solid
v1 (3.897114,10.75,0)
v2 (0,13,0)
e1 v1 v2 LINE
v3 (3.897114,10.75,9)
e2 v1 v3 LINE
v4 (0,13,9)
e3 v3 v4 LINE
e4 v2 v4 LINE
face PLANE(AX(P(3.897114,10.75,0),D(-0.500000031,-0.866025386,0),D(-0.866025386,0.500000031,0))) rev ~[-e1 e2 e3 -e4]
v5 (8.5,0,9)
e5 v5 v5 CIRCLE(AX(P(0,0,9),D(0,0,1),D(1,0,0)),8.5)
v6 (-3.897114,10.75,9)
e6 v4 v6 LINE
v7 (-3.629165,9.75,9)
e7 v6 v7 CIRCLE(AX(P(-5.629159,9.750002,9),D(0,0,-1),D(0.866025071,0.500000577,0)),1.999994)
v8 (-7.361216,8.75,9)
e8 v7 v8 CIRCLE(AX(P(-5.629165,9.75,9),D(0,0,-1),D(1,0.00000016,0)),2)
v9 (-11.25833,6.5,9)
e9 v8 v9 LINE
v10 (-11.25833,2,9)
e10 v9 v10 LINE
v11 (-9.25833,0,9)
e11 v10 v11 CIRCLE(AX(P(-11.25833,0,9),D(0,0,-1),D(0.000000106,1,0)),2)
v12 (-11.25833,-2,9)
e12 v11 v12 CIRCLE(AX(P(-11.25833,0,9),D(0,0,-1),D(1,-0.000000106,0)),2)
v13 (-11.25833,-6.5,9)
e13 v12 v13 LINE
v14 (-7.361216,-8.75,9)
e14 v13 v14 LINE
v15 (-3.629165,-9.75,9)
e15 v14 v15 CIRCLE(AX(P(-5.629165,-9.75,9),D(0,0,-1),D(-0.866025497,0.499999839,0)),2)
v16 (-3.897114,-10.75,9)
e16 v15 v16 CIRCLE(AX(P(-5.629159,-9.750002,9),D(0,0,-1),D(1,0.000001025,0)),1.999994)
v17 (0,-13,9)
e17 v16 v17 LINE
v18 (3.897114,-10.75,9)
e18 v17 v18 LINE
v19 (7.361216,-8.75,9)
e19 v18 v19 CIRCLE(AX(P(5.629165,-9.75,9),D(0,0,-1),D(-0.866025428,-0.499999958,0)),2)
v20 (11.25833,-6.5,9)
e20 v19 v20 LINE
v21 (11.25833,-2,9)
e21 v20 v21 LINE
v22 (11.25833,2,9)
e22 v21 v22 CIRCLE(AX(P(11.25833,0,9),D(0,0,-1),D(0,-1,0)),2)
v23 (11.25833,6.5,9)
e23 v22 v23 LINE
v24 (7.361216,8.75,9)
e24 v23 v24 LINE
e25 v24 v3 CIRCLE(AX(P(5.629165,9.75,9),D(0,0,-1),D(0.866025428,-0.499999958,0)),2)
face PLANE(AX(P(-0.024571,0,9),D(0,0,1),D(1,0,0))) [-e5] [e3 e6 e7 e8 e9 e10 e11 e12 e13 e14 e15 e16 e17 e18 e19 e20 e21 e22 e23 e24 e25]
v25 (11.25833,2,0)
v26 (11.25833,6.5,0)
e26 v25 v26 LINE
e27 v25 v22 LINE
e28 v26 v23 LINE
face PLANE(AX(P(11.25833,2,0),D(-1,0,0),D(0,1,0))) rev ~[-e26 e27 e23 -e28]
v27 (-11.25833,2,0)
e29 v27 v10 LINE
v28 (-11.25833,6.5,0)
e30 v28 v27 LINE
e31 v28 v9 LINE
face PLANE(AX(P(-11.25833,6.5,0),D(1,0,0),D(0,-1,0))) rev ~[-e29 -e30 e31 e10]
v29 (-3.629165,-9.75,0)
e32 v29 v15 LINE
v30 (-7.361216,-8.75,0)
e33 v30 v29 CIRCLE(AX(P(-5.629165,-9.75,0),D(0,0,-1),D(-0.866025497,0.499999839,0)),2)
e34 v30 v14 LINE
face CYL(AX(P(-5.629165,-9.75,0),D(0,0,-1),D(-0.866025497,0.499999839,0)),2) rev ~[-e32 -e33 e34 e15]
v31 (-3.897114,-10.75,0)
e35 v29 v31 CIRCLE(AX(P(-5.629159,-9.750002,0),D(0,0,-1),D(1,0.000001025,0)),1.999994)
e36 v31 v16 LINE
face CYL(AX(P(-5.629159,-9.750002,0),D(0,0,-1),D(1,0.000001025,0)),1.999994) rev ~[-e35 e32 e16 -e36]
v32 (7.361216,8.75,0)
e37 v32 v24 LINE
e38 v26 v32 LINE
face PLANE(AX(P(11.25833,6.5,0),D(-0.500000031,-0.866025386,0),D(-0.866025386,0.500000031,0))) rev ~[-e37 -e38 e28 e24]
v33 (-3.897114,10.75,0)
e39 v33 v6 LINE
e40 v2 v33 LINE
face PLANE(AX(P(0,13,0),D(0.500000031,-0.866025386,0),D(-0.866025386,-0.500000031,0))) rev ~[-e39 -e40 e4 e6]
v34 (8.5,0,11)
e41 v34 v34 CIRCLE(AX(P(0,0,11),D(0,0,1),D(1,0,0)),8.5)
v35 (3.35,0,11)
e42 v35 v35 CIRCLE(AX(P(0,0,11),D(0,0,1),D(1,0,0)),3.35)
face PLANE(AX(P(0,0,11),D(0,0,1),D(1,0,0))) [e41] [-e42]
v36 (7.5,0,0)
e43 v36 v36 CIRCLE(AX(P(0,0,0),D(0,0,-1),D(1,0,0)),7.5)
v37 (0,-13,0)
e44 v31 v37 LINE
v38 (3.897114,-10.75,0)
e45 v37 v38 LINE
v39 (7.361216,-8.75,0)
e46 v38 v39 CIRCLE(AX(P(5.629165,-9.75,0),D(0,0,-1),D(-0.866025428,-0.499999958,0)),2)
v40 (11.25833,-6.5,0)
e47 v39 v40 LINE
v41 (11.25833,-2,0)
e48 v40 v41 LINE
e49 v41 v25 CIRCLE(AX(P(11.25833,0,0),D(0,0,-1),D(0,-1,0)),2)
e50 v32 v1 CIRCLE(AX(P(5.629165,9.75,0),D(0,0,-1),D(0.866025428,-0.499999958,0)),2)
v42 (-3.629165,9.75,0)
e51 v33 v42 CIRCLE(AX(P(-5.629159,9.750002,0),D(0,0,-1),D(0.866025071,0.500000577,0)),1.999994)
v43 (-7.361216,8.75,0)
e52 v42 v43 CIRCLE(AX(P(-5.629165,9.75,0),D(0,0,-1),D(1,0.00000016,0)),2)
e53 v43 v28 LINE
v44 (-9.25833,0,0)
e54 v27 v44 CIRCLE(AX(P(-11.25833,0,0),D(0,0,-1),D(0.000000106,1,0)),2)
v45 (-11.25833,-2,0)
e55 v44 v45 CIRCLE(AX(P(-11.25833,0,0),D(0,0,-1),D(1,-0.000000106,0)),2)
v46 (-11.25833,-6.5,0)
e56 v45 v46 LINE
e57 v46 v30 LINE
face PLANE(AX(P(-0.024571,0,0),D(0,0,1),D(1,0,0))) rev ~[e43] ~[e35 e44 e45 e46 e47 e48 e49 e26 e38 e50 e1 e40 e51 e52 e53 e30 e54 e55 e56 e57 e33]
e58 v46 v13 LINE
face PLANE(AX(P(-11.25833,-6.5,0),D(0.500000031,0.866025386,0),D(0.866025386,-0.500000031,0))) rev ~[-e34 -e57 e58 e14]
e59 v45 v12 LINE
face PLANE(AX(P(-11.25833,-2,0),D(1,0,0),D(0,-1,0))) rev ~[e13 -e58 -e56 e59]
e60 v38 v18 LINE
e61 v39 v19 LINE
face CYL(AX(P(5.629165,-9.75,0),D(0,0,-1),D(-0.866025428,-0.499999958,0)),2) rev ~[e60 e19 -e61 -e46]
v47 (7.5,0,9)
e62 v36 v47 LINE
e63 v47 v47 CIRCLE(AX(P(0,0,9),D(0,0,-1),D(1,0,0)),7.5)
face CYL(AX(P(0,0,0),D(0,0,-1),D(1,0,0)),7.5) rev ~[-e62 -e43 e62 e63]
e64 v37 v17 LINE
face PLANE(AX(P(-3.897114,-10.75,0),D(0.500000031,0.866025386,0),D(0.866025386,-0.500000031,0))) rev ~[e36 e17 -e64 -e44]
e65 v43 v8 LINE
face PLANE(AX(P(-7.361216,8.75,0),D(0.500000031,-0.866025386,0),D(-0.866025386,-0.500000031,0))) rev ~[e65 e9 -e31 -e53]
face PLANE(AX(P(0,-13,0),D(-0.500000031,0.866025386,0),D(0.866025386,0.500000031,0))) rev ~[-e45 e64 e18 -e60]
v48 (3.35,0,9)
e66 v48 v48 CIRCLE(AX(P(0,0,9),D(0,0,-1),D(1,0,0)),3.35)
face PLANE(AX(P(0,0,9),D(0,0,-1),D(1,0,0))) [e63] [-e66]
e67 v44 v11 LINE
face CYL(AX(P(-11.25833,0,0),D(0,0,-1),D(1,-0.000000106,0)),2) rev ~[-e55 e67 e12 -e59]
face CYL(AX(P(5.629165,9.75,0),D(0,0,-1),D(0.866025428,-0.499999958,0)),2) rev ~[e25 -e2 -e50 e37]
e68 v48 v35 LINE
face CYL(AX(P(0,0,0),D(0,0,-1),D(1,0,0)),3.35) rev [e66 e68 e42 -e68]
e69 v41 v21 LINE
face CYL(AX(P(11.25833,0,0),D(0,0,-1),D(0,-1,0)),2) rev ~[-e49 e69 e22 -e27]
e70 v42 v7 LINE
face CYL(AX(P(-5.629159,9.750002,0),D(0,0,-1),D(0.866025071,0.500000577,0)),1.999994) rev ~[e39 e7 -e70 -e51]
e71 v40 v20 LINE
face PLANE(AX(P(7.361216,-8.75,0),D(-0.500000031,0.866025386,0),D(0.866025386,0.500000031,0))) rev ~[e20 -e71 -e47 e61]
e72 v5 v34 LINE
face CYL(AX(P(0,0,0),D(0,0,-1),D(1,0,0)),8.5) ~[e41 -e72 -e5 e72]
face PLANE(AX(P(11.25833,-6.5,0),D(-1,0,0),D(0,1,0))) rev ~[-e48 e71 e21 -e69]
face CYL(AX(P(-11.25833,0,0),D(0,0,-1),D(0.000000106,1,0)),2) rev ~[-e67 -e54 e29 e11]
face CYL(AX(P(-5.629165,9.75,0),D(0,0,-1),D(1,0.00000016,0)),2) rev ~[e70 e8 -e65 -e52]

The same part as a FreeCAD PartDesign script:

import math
import FreeCAD as App
import Part
import Sketcher

V = App.Vector
Q = App.Units.Quantity

doc = App.newDocument("Part")
body = doc.addObject("PartDesign::Body", "Body")

# Sketch on XY plane
sketch1 = body.newObject("Sketcher::SketchObject", "Sketch")
sketch1.AttachmentSupport = (doc.getObject("XY_Plane"), [""])
sketch1.MapMode = "FlatFace"
sketch1.addGeometry([
    Part.LineSegment(V(-11.3, -2, 0), V(-11.3, -6.5, 0)),  # 0
    Part.LineSegment(V(-11.3, -6.5, 0), V(-7.4, -8.8, 0)),  # 1
    Part.ArcOfCircle(Part.Circle(V(-5.6, -9.7, 0), V(0, 0, 1), 2), math.radians(0), math.radians(150)),  # 2
    Part.ArcOfCircle(Part.Circle(V(-5.6, -9.8, 0), V(0, 0, 1), 2), math.radians(-30), math.radians(0)),  # 3
    Part.LineSegment(V(-3.9, -10.8, 0), V(0, -13, 0)),  # 4
    Part.LineSegment(V(0, -13, 0), V(3.9, -10.8, 0)),  # 5
    Part.ArcOfCircle(Part.Circle(V(5.6, -9.8, 0), V(0, 0, 1), 2), math.radians(30), math.radians(210)),  # 6
    Part.LineSegment(V(7.4, -8.8, 0), V(11.3, -6.5, 0)),  # 7
    Part.LineSegment(V(11.3, -6.5, 0), V(11.3, -2, 0)),  # 8
    Part.ArcOfCircle(Part.Circle(V(11.3, 0, 0), V(0, 0, 1), 2), math.radians(90), math.radians(270)),  # 9
    Part.LineSegment(V(11.3, 2, 0), V(11.3, 6.5, 0)),  # 10
    Part.LineSegment(V(11.3, 6.5, 0), V(7.4, 8.8, 0)),  # 11
    Part.ArcOfCircle(Part.Circle(V(5.6, 9.8, 0), V(0, 0, 1), 2), math.radians(150), math.radians(330)),  # 12
    Part.LineSegment(V(3.9, 10.8, 0), V(0, 13, 0)),  # 13
    Part.LineSegment(V(0, 13, 0), V(-3.9, 10.8, 0)),  # 14
    Part.ArcOfCircle(Part.Circle(V(-5.6, 9.8, 0), V(0, 0, 1), 2), math.radians(0), math.radians(30)),  # 15
    Part.ArcOfCircle(Part.Circle(V(-5.6, 9.7, 0), V(0, 0, 1), 2), math.radians(-150), math.radians(0)),  # 16
    Part.LineSegment(V(-7.4, 8.8, 0), V(-11.3, 6.5, 0)),  # 17
    Part.LineSegment(V(-11.3, 6.5, 0), V(-11.3, 2, 0)),  # 18
    Part.ArcOfCircle(Part.Circle(V(-11.3, 0, 0), V(0, 0, 1), 2), math.radians(0), math.radians(90)),  # 19
    Part.ArcOfCircle(Part.Circle(V(-11.3, 0, 0), V(0, 0, 1), 2), math.radians(-90), math.radians(0)),  # 20
    Part.Circle(V(0, 0, 0), V(0, 0, 1), 8.5),  # 21
], False)
sketch1.addConstraint([
    Sketcher.Constraint("Coincident", 0, 2, 1, 1),
    Sketcher.Constraint("Coincident", 1, 2, 2, 2),
    Sketcher.Constraint("Tangent", 2, 1, 3, 2),
    Sketcher.Constraint("Coincident", 3, 1, 4, 1),
    Sketcher.Constraint("Coincident", 4, 2, 5, 1),
    Sketcher.Constraint("Coincident", 5, 2, 6, 2),
    Sketcher.Constraint("Coincident", 6, 1, 7, 1),
    Sketcher.Constraint("Coincident", 7, 2, 8, 1),
    Sketcher.Constraint("Coincident", 8, 2, 9, 2),
    Sketcher.Constraint("Coincident", 9, 1, 10, 1),
    Sketcher.Constraint("Coincident", 10, 2, 11, 1),
    Sketcher.Constraint("Coincident", 11, 2, 12, 2),
    Sketcher.Constraint("Coincident", 12, 1, 13, 1),
    Sketcher.Constraint("Coincident", 13, 2, 14, 1),
    Sketcher.Constraint("Coincident", 14, 2, 15, 2),
    Sketcher.Constraint("Tangent", 15, 1, 16, 2),
    Sketcher.Constraint("Coincident", 16, 1, 17, 1),
    Sketcher.Constraint("Coincident", 17, 2, 18, 1),
    Sketcher.Constraint("Coincident", 18, 2, 19, 2),
    Sketcher.Constraint("Tangent", 19, 1, 20, 2),
    Sketcher.Constraint("Coincident", 20, 1, 0, 1),
    Sketcher.Constraint("Vertical", 0),
    Sketcher.Constraint("Vertical", 8),
    Sketcher.Constraint("Vertical", 10),
    Sketcher.Constraint("Vertical", 18),
    Sketcher.Constraint("Coincident", 21, 3, -1, 1),
    Sketcher.Constraint("Equal", 2, 6),
    Sketcher.Constraint("Equal", 6, 9),
    Sketcher.Constraint("Equal", 9, 12),
    Sketcher.Constraint("Equal", 3, 15),
    Sketcher.Constraint("Equal", 12, 16),
    Sketcher.Constraint("Equal", 16, 19),
    Sketcher.Constraint("Equal", 19, 20),
    Sketcher.Constraint("Symmetric", 2, 3, 12, 3, -1, 1),
    Sketcher.Constraint("Symmetric", 6, 3, 15, 3, -1, 1),
    Sketcher.Constraint("Symmetric", 9, 3, 19, 3, -1, 1),
    Sketcher.Constraint("Symmetric", 0, 2, 10, 2, -1, 1),
    Sketcher.Constraint("Symmetric", 3, 1, 12, 1, -1, 1),
    Sketcher.Constraint("Symmetric", 4, 2, 13, 2, -1, 1),
    Sketcher.Constraint("Symmetric", 7, 2, 17, 2, -1, 1),
    Sketcher.Constraint("Symmetric", 2, 3, 6, 3, -2),
    Sketcher.Constraint("Symmetric", 0, 2, 7, 2, -2),
    Sketcher.Constraint("PointOnObject", 9, 3, -1),
    Sketcher.Constraint("PointOnObject", 4, 2, -2),
    Sketcher.Constraint("PointOnObject", 19, 1, -1),
    Sketcher.Constraint("Parallel", 1, 4),
    Sketcher.Constraint("Parallel", 5, 7),
    Sketcher.Constraint("Parallel", 4, 11),
    Sketcher.Constraint("Parallel", 7, 14),
    Sketcher.Constraint("Parallel", 14, 17),
    Sketcher.Constraint("Horizontal", 6, 3, 2, 1),
    Sketcher.Constraint("Horizontal", 3, 1, 5, 2),
    Sketcher.Constraint("Horizontal", 16, 3, 15, 1),
    Sketcher.Constraint("Vertical", 20, 3, 0, 2),
    Sketcher.Constraint("Equal", 1, 4),
    Sketcher.Constraint("Diameter", 21, 17.0),
    Sketcher.Constraint("Radius", 2, 2.0),
    Sketcher.Constraint("Angle", 1, Q("-30.000002 deg")),
    Sketcher.Constraint("DistanceY", 0, 2, 0, 1, 4.5),
    Sketcher.Constraint("DistanceY", 4, 2, -1, 1, 13.0),
    Sketcher.Constraint("DistanceY", 2, 3, 1, 2, 1.0),
    Sketcher.Constraint("DistanceY", 3, 1, 2, 1, 1.0),
])
pad1 = body.newObject("PartDesign::Pad", "Pad")
pad1.Profile = sketch1
pad1.Length = 9

# Sketch on XY plane
sketch2 = body.newObject("Sketcher::SketchObject", "Sketch001")
sketch2.AttachmentSupport = (doc.getObject("XY_Plane"), [""])
sketch2.MapMode = "FlatFace"
sketch2.addGeometry([
    Part.Circle(V(0, 0, 0), V(0, 0, 1), 8.5),
    Part.Circle(V(0, 0, 0), V(0, 0, 1), 3.4),
], False)
sketch2.addConstraint([
    Sketcher.Constraint("Coincident", 0, 3, -1, 1),
    Sketcher.Constraint("Coincident", 1, 3, -1, 1),
    Sketcher.Constraint("Diameter", 0, 17.0),
    Sketcher.Constraint("Diameter", 1, 6.7),
])
pad2 = body.newObject("PartDesign::Pad", "Pad001")
pad2.Profile = sketch2
pad2.Length = 11

# Sketch on XY plane
sketch3 = body.newObject("Sketcher::SketchObject", "Sketch002")
sketch3.AttachmentSupport = (doc.getObject("XY_Plane"), [""])
sketch3.MapMode = "FlatFace"
sketch3.addGeometry([
    Part.Circle(V(0, 0, 0), V(0, 0, 1), 7.5),
    Part.Circle(V(0, 0, 0), V(0, 0, 1), 3.4),
], False)
sketch3.addConstraint([
    Sketcher.Constraint("Coincident", 0, 3, -1, 1),
    Sketcher.Constraint("Coincident", 1, 3, -1, 1),
    Sketcher.Constraint("Diameter", 0, 15.0),
    Sketcher.Constraint("Diameter", 1, 6.7),
])
pocket1 = body.newObject("PartDesign::Pocket", "Pocket")
pocket1.Profile = sketch3
pocket1.Length = 9
pocket1.Reversed = True

doc.recompute()
